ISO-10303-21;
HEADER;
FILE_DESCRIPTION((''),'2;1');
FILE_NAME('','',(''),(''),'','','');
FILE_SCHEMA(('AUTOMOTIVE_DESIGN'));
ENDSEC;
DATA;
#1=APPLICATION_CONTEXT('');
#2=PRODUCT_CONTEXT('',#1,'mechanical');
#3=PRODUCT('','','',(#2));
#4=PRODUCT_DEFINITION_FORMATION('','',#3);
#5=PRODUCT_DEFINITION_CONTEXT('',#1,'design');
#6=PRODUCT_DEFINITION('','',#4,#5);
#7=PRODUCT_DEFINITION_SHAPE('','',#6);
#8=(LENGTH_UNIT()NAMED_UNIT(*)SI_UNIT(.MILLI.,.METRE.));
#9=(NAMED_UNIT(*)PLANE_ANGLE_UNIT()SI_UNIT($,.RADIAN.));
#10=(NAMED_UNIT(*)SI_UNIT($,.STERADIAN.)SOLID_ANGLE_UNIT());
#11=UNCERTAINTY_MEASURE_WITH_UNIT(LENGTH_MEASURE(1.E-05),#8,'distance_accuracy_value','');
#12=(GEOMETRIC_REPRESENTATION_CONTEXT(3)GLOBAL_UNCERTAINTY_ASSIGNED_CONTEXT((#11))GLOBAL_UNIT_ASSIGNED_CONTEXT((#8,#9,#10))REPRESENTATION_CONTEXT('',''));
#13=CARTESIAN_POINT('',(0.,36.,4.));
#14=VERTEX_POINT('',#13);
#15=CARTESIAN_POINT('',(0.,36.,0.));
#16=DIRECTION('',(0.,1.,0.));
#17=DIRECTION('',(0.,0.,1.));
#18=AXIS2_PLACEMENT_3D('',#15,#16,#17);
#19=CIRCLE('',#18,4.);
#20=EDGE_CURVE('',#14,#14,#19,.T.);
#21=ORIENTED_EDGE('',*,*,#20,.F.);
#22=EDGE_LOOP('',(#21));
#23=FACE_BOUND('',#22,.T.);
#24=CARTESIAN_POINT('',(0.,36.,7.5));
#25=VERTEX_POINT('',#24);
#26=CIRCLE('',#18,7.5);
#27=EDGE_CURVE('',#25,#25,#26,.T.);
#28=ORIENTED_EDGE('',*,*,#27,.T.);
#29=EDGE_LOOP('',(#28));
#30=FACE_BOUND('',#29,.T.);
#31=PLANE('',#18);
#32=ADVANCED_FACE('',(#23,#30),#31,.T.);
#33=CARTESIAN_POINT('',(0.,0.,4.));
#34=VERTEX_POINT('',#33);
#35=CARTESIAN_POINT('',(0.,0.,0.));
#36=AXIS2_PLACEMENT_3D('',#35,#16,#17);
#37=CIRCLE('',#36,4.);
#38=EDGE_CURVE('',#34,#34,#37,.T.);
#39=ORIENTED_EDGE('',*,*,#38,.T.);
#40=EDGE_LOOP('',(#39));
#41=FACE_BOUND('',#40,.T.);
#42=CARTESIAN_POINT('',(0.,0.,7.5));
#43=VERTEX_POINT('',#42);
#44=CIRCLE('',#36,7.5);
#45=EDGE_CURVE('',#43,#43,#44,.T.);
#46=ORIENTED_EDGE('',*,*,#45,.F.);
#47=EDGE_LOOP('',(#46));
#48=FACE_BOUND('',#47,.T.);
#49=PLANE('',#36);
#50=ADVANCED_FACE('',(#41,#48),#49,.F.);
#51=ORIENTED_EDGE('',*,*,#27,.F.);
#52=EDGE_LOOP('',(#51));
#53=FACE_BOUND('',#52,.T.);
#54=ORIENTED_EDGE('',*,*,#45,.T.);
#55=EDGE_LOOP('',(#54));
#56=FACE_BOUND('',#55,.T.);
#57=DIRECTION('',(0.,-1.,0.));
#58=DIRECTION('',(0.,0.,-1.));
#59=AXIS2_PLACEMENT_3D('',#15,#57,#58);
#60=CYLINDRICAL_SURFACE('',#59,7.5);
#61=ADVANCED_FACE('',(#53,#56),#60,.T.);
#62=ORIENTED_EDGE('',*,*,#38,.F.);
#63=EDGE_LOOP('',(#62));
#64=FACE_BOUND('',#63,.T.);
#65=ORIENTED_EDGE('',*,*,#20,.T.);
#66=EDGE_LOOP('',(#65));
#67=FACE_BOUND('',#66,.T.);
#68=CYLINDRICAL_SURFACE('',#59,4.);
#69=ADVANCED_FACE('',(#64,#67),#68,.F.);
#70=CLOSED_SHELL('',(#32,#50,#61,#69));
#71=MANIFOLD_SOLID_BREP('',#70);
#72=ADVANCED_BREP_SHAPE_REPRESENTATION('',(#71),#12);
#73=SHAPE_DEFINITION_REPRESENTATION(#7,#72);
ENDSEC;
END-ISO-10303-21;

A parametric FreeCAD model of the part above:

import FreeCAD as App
import Part
import Sketcher
from FreeCAD import Vector
Q = App.Units.Quantity

doc = App.newDocument("Part")
body = doc.addObject("PartDesign::Body", "Body")

# Sketch on XZ plane
sketch1 = doc.addObject("Sketcher::SketchObject", "Sketch")
body.addObject(sketch1)
sketch1.AttachmentSupport = (doc.XZ_Plane, [""])
sketch1.MapMode = "FlatFace"
sketch1.addGeometry(Part.Circle(Vector(0, 0, 0), Vector(0, 0, 1), 7.5), False)
sketch1.addGeometry(Part.Circle(Vector(0, 0, 0), Vector(0, 0, 1), 4), False)
sketch1.addConstraint(Sketcher.Constraint("Coincident", 0, 3, -1, 1))
sketch1.addConstraint(Sketcher.Constraint("Coincident", 1, 3, -1, 1))
sketch1.addConstraint(Sketcher.Constraint("Diameter", 0, Q("15 mm")))
sketch1.addConstraint(Sketcher.Constraint("Diameter", 1, Q("8 mm")))
pad1 = doc.addObject("PartDesign::Pad", "Pad")
body.addObject(pad1)
pad1.Profile = sketch1
pad1.Length = 36
pad1.Reversed = True

doc.recompute()
